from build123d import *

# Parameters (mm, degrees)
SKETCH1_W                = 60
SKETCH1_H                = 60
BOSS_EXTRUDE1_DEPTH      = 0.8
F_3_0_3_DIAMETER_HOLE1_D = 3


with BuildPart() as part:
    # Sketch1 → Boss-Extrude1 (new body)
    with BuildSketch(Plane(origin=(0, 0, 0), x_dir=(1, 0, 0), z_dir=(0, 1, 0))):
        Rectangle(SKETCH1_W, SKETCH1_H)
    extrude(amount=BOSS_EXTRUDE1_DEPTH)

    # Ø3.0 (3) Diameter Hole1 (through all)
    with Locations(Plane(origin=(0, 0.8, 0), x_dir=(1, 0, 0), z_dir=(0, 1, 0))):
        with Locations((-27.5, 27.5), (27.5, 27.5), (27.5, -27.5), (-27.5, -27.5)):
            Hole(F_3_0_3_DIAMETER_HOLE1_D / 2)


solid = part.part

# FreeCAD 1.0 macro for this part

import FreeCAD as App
import Part
import Sketcher

V = App.Vector
Q = App.Units.Quantity

doc = App.newDocument("Part")
body = doc.addObject("PartDesign::Body", "Body")

# Sketch on XZ plane
sketch1 = doc.addObject("Sketcher::SketchObject", "Sketch")
body.addObject(sketch1)
sketch1.AttachmentSupport = (doc.XZ_Plane, [""])
sketch1.MapMode = "FlatFace"
sketch1.addGeometry(Part.LineSegment(V(-30, -30, 0), V(-30, 30, 0)), False)
sketch1.addGeometry(Part.LineSegment(V(-30, 30, 0), V(30, 30, 0)), False)
sketch1.addGeometry(Part.LineSegment(V(30, 30, 0), V(30, -30, 0)), False)
sketch1.addGeometry(Part.LineSegment(V(30, -30, 0), V(-30, -30, 0)), False)
sketch1.addConstraint(Sketcher.Constraint("Coincident", 0, 2, 1, 1))
sketch1.addConstraint(Sketcher.Constraint("Coincident", 1, 2, 2, 1))
sketch1.addConstraint(Sketcher.Constraint("Coincident", 2, 2, 3, 1))
sketch1.addConstraint(Sketcher.Constraint("Coincident", 3, 2, 0, 1))
sketch1.addConstraint(Sketcher.Constraint("Vertical", 0))
sketch1.addConstraint(Sketcher.Constraint("Horizontal", 1))
sketch1.addConstraint(Sketcher.Constraint("Vertical", 2))
sketch1.addConstraint(Sketcher.Constraint("Horizontal", 3))
sketch1.addConstraint(Sketcher.Constraint("Symmetric", 0, 2, 2, 2, -1, 1))
sketch1.addConstraint(Sketcher.Constraint("Equal", 3, 0))
sketch1.addConstraint(Sketcher.Constraint("DistanceX", 1, 1, 1, 2, Q("60 mm")))
pad1 = doc.addObject("PartDesign::Pad", "Pad")
body.addObject(pad1)
pad1.Profile = sketch1
pad1.Length = 0.8
pad1.Reversed = True

# Sketch on XZ plane
sketch2 = doc.addObject("Sketcher::SketchObject", "Sketch001")
body.addObject(sketch2)
sketch2.AttachmentSupport = (doc.XZ_Plane, [""])
sketch2.MapMode = "FlatFace"
sketch2.AttachmentOffset = App.Placement(V(0, 0, -0.8), App.Rotation())
sketch2.addGeometry(Part.Circle(V(-27.5, -27.5, 0), V(0, 0, 1), 1.5), False)
sketch2.addGeometry(Part.Circle(V(27.5, -27.5, 0), V(0, 0, 1), 1.5), False)
sketch2.addGeometry(Part.Circle(V(27.5, 27.5, 0), V(0, 0, 1), 1.5), False)
sketch2.addGeometry(Part.Circle(V(-27.5, 27.5, 0), V(0, 0, 1), 1.5), False)
sketch2.addConstraint(Sketcher.Constraint("Equal", 0, 1))
sketch2.addConstraint(Sketcher.Constraint("Equal", 1, 2))
sketch2.addConstraint(Sketcher.Constraint("Equal", 2, 3))
sketch2.addConstraint(Sketcher.Constraint("Symmetric", 0, 3, 2, 3, -1, 1))
sketch2.addConstraint(Sketcher.Constraint("Symmetric", 1, 3, 3, 3, -1, 1))
sketch2.addConstraint(Sketcher.Constraint("Symmetric", 0, 3, 1, 3, -2))
sketch2.addConstraint(Sketcher.Constraint("Diameter", 0, Q("3 mm")))
sketch2.addConstraint(Sketcher.Constraint("DistanceX", 0, 3, 1, 3, Q("55 mm")))
sketch2.addConstraint(Sketcher.Constraint("DistanceY", 1, 3, 2, 3, Q("55 mm")))
doc.recompute()
hole = doc.addObject("PartDesign::Hole", "Hole")
body.addObject(hole)
hole.Profile = sketch2
hole.ThreadType = "None"
hole.Diameter = 3
hole.DepthType = "ThroughAll"
hole.Reversed = True

doc.recompute()
